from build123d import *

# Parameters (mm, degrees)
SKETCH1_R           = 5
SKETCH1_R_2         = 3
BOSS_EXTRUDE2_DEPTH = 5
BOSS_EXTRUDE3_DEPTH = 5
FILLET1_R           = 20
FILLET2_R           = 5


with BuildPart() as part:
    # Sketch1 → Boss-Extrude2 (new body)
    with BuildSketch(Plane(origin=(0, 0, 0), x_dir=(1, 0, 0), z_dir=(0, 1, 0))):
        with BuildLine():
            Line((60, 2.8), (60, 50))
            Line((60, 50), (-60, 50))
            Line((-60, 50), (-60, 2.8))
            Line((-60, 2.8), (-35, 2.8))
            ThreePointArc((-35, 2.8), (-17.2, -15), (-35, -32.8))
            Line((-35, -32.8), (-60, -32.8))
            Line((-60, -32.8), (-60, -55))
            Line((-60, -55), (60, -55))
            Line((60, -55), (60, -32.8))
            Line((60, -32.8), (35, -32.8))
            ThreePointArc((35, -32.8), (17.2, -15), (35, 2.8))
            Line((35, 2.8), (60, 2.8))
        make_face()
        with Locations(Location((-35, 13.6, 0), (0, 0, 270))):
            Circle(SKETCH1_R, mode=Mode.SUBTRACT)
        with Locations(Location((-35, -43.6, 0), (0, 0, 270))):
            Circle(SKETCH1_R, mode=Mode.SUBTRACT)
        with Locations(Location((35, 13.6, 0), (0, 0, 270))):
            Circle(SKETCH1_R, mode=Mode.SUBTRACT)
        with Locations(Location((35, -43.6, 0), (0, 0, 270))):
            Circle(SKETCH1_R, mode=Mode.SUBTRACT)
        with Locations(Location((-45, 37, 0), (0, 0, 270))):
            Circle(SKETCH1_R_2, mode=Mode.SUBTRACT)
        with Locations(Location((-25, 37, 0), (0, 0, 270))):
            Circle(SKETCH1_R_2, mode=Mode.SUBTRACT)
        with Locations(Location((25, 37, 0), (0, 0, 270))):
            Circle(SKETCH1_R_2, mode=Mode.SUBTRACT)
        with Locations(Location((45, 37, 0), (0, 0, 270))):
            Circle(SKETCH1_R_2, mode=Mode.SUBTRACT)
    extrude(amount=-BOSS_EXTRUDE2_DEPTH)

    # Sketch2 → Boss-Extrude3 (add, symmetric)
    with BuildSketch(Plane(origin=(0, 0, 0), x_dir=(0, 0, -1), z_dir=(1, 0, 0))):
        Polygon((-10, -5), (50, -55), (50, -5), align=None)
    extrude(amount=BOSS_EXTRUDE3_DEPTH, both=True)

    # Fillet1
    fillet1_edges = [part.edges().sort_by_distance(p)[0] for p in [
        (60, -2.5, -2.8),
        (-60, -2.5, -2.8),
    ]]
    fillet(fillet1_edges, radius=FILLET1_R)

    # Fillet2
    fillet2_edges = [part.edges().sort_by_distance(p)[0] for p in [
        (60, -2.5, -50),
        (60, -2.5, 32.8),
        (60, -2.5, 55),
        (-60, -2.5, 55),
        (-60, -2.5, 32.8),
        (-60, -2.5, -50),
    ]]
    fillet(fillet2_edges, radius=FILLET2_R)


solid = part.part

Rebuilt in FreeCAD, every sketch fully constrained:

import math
import FreeCAD as App
import Part
import Sketcher

V = App.Vector
Q = App.Units.Quantity


def edges_at(feature, points):
    """Names of the edges that pass closest to the given points."""
    edges = feature.Shape.Edges
    near = lambda p: min(range(len(edges)), key=lambda i: edges[i].distToShape(Part.Vertex(*p))[0])
    return sorted({f"Edge{near(p) + 1}" for p in points})

doc = App.newDocument("Part")
body = doc.addObject("PartDesign::Body", "Body")

sketch1 = doc.addObject("Sketcher::SketchObject", "Sketch")
body.addObject(sketch1)
sketch1.AttachmentSupport = (doc.XZ_Plane, [""])
sketch1.MapMode = "FlatFace"
sketch1.addGeometry([
    Part.LineSegment(V(60, -2.8, 0), V(60, -50, 0)),
    Part.LineSegment(V(60, -50, 0), V(-60, -50, 0)),
    Part.LineSegment(V(-60, -50, 0), V(-60, -2.8, 0)),
    Part.LineSegment(V(-60, -2.8, 0), V(-35, -2.8, 0)),
    Part.ArcOfCircle(Part.Circle(V(-35, 15, 0), V(0, 0, 1), 17.8), math.radians(-90), math.radians(90)),
    Part.LineSegment(V(-35, 32.8, 0), V(-60, 32.8, 0)),
    Part.LineSegment(V(-60, 32.8, 0), V(-60, 55, 0)),
    Part.LineSegment(V(-60, 55, 0), V(60, 55, 0)),
    Part.LineSegment(V(60, 55, 0), V(60, 32.8, 0)),
    Part.LineSegment(V(60, 32.8, 0), V(35, 32.8, 0)),
    Part.ArcOfCircle(Part.Circle(V(35, 15, 0), V(0, 0, 1), 17.8), math.radians(90), math.radians(270)),
    Part.LineSegment(V(35, -2.8, 0), V(60, -2.8, 0)),
    Part.Circle(V(-35, 43.6, 0), V(0, 0, 1), 5),
    Part.Circle(V(35, 43.6, 0), V(0, 0, 1), 5),
    Part.Circle(V(-35, -13.6, 0), V(0, 0, 1), 5),
    Part.Circle(V(-45, -37, 0), V(0, 0, 1), 3),
    Part.Circle(V(-25, -37, 0), V(0, 0, 1), 3),
    Part.Circle(V(35, -13.6, 0), V(0, 0, 1), 5),
    Part.Circle(V(25, -37, 0), V(0, 0, 1), 3),
    Part.Circle(V(45, -37, 0), V(0, 0, 1), 3),
], False)
sketch1.addConstraint([
    Sketcher.Constraint("Coincident", 0, 2, 1, 1),
    Sketcher.Constraint("Coincident", 1, 2, 2, 1),
    Sketcher.Constraint("Coincident", 2, 2, 3, 1),
    Sketcher.Constraint("Tangent", 3, 2, 4, 1),
    Sketcher.Constraint("Tangent", 4, 2, 5, 1),
    Sketcher.Constraint("Coincident", 5, 2, 6, 1),
    Sketcher.Constraint("Coincident", 6, 2, 7, 1),
    Sketcher.Constraint("Coincident", 7, 2, 8, 1),
    Sketcher.Constraint("Coincident", 8, 2, 9, 1),
    Sketcher.Constraint("Tangent", 9, 2, 10, 1),
    Sketcher.Constraint("Tangent", 10, 2, 11, 1),
    Sketcher.Constraint("Coincident", 11, 2, 0, 1),
    Sketcher.Constraint("Vertical", 0),
    Sketcher.Constraint("Horizontal", 1),
    Sketcher.Constraint("Vertical", 2),
    Sketcher.Constraint("Horizontal", 3),
    Sketcher.Constraint("Horizontal", 5),
    Sketcher.Constraint("Vertical", 6),
    Sketcher.Constraint("Horizontal", 7),
    Sketcher.Constraint("Vertical", 8),
    Sketcher.Constraint("Horizontal", 9),
    Sketcher.Constraint("Horizontal", 11),
    Sketcher.Constraint("Equal", 4, 10),
    Sketcher.Constraint("Equal", 12, 13),
    Sketcher.Constraint("Equal", 13, 14),
    Sketcher.Constraint("Equal", 15, 16),
    Sketcher.Constraint("Equal", 14, 17),
    Sketcher.Constraint("Equal", 16, 18),
    Sketcher.Constraint("Equal", 18, 19),
    Sketcher.Constraint("Symmetric", 4, 3, 10, 3, -2),
    Sketcher.Constraint("Symmetric", 12, 3, 13, 3, -2),
    Sketcher.Constraint("Symmetric", 14, 3, 17, 3, -2),
    Sketcher.Constraint("Symmetric", 16, 3, 18, 3, -2),
    Sketcher.Constraint("Symmetric", 15, 3, 19, 3, -2),
    Sketcher.Constraint("Horizontal", 15, 3, 16, 3),
    Sketcher.Constraint("Vertical", 4, 3, 12, 3),
    Sketcher.Constraint("Vertical", 12, 3, 14, 3),
    Sketcher.Constraint("Vertical", 2, 2, 5, 2),
    Sketcher.Constraint("Vertical", 0, 2, 7, 2),
    Sketcher.Constraint("Equal", 5, 9),
    Sketcher.Constraint("Diameter", 12, Q("10 mm")),
    Sketcher.Constraint("Diameter", 15, Q("6 mm")),
    Sketcher.Constraint("Radius", 4, Q("17.8 mm")),
    Sketcher.Constraint("DistanceX", 1, 2, 1, 1, Q("120 mm")),
    Sketcher.Constraint("DistanceX", 3, 1, 3, 2, Q("25 mm")),
    Sketcher.Constraint("DistanceY", 0, 2, 0, 1, Q("47.2 mm")),
    Sketcher.Constraint("DistanceY", 6, 1, 6, 2, Q("22.2 mm")),
    Sketcher.Constraint("DistanceY", -1, 1, 4, 3, Q("15 mm")),
    Sketcher.Constraint("DistanceX", 15, 3, -1, 1, Q("45 mm")),
    Sketcher.Constraint("DistanceY", 15, 3, -1, 1, Q("37 mm")),
    Sketcher.Constraint("DistanceX", 16, 3, -1, 1, Q("25 mm")),
    Sketcher.Constraint("DistanceY", -1, 1, 12, 3, Q("43.6 mm")),
    Sketcher.Constraint("DistanceY", 14, 3, -1, 1, Q("13.6 mm")),
])
pad1 = doc.addObject("PartDesign::Pad", "Pad")
body.addObject(pad1)
pad1.Profile = sketch1
pad1.Length = 5

sketch2 = doc.addObject("Sketcher::SketchObject", "Sketch001")
body.addObject(sketch2)
sketch2.AttachmentSupport = (doc.YZ_Plane, [""])
sketch2.MapMode = "FlatFace"
sketch2.addGeometry([
    Part.LineSegment(V(-5, 10, 0), V(-55, -50, 0)),
    Part.LineSegment(V(-55, -50, 0), V(-5, -50, 0)),
    Part.LineSegment(V(-5, -50, 0), V(-5, 10, 0)),
], False)
sketch2.addConstraint([
    Sketcher.Constraint("Coincident", 0, 2, 1, 1),
    Sketcher.Constraint("Coincident", 1, 2, 2, 1),
    Sketcher.Constraint("Coincident", 2, 2, 0, 1),
    Sketcher.Constraint("Horizontal", 1),
    Sketcher.Constraint("Vertical", 2),
    Sketcher.Constraint("DistanceX", 1, 1, 1, 2, Q("50 mm")),
    Sketcher.Constraint("DistanceY", 2, 1, 2, 2, Q("60 mm")),
    Sketcher.Constraint("DistanceX", 0, 2, -1, 1, Q("55 mm")),
    Sketcher.Constraint("DistanceY", 0, 2, -1, 1, Q("50 mm")),
])
pad2 = doc.addObject("PartDesign::Pad", "Pad001")
body.addObject(pad2)
pad2.Profile = sketch2
pad2.Length = 10
pad2.Midplane = True
doc.recompute()

fillet = doc.addObject("PartDesign::Fillet", "Fillet")
body.addObject(fillet)
fillet.Base = (pad2, edges_at(pad2, [(60, -2.5, -2.8), (-60, -2.5, -2.8)]))
fillet.Radius = 20
doc.recompute()

fillet2 = doc.addObject("PartDesign::Fillet", "Fillet001")
body.addObject(fillet2)
fillet2.Base = (fillet, edges_at(fillet, [
    (60, -2.5, -50),
    (60, -2.5, 32.8),
    (60, -2.5, 55),
    (-60, -2.5, 55),
    (-60, -2.5, 32.8),
    (-60, -2.5, -50),
]))
fillet2.Radius = 5

doc.recompute()
